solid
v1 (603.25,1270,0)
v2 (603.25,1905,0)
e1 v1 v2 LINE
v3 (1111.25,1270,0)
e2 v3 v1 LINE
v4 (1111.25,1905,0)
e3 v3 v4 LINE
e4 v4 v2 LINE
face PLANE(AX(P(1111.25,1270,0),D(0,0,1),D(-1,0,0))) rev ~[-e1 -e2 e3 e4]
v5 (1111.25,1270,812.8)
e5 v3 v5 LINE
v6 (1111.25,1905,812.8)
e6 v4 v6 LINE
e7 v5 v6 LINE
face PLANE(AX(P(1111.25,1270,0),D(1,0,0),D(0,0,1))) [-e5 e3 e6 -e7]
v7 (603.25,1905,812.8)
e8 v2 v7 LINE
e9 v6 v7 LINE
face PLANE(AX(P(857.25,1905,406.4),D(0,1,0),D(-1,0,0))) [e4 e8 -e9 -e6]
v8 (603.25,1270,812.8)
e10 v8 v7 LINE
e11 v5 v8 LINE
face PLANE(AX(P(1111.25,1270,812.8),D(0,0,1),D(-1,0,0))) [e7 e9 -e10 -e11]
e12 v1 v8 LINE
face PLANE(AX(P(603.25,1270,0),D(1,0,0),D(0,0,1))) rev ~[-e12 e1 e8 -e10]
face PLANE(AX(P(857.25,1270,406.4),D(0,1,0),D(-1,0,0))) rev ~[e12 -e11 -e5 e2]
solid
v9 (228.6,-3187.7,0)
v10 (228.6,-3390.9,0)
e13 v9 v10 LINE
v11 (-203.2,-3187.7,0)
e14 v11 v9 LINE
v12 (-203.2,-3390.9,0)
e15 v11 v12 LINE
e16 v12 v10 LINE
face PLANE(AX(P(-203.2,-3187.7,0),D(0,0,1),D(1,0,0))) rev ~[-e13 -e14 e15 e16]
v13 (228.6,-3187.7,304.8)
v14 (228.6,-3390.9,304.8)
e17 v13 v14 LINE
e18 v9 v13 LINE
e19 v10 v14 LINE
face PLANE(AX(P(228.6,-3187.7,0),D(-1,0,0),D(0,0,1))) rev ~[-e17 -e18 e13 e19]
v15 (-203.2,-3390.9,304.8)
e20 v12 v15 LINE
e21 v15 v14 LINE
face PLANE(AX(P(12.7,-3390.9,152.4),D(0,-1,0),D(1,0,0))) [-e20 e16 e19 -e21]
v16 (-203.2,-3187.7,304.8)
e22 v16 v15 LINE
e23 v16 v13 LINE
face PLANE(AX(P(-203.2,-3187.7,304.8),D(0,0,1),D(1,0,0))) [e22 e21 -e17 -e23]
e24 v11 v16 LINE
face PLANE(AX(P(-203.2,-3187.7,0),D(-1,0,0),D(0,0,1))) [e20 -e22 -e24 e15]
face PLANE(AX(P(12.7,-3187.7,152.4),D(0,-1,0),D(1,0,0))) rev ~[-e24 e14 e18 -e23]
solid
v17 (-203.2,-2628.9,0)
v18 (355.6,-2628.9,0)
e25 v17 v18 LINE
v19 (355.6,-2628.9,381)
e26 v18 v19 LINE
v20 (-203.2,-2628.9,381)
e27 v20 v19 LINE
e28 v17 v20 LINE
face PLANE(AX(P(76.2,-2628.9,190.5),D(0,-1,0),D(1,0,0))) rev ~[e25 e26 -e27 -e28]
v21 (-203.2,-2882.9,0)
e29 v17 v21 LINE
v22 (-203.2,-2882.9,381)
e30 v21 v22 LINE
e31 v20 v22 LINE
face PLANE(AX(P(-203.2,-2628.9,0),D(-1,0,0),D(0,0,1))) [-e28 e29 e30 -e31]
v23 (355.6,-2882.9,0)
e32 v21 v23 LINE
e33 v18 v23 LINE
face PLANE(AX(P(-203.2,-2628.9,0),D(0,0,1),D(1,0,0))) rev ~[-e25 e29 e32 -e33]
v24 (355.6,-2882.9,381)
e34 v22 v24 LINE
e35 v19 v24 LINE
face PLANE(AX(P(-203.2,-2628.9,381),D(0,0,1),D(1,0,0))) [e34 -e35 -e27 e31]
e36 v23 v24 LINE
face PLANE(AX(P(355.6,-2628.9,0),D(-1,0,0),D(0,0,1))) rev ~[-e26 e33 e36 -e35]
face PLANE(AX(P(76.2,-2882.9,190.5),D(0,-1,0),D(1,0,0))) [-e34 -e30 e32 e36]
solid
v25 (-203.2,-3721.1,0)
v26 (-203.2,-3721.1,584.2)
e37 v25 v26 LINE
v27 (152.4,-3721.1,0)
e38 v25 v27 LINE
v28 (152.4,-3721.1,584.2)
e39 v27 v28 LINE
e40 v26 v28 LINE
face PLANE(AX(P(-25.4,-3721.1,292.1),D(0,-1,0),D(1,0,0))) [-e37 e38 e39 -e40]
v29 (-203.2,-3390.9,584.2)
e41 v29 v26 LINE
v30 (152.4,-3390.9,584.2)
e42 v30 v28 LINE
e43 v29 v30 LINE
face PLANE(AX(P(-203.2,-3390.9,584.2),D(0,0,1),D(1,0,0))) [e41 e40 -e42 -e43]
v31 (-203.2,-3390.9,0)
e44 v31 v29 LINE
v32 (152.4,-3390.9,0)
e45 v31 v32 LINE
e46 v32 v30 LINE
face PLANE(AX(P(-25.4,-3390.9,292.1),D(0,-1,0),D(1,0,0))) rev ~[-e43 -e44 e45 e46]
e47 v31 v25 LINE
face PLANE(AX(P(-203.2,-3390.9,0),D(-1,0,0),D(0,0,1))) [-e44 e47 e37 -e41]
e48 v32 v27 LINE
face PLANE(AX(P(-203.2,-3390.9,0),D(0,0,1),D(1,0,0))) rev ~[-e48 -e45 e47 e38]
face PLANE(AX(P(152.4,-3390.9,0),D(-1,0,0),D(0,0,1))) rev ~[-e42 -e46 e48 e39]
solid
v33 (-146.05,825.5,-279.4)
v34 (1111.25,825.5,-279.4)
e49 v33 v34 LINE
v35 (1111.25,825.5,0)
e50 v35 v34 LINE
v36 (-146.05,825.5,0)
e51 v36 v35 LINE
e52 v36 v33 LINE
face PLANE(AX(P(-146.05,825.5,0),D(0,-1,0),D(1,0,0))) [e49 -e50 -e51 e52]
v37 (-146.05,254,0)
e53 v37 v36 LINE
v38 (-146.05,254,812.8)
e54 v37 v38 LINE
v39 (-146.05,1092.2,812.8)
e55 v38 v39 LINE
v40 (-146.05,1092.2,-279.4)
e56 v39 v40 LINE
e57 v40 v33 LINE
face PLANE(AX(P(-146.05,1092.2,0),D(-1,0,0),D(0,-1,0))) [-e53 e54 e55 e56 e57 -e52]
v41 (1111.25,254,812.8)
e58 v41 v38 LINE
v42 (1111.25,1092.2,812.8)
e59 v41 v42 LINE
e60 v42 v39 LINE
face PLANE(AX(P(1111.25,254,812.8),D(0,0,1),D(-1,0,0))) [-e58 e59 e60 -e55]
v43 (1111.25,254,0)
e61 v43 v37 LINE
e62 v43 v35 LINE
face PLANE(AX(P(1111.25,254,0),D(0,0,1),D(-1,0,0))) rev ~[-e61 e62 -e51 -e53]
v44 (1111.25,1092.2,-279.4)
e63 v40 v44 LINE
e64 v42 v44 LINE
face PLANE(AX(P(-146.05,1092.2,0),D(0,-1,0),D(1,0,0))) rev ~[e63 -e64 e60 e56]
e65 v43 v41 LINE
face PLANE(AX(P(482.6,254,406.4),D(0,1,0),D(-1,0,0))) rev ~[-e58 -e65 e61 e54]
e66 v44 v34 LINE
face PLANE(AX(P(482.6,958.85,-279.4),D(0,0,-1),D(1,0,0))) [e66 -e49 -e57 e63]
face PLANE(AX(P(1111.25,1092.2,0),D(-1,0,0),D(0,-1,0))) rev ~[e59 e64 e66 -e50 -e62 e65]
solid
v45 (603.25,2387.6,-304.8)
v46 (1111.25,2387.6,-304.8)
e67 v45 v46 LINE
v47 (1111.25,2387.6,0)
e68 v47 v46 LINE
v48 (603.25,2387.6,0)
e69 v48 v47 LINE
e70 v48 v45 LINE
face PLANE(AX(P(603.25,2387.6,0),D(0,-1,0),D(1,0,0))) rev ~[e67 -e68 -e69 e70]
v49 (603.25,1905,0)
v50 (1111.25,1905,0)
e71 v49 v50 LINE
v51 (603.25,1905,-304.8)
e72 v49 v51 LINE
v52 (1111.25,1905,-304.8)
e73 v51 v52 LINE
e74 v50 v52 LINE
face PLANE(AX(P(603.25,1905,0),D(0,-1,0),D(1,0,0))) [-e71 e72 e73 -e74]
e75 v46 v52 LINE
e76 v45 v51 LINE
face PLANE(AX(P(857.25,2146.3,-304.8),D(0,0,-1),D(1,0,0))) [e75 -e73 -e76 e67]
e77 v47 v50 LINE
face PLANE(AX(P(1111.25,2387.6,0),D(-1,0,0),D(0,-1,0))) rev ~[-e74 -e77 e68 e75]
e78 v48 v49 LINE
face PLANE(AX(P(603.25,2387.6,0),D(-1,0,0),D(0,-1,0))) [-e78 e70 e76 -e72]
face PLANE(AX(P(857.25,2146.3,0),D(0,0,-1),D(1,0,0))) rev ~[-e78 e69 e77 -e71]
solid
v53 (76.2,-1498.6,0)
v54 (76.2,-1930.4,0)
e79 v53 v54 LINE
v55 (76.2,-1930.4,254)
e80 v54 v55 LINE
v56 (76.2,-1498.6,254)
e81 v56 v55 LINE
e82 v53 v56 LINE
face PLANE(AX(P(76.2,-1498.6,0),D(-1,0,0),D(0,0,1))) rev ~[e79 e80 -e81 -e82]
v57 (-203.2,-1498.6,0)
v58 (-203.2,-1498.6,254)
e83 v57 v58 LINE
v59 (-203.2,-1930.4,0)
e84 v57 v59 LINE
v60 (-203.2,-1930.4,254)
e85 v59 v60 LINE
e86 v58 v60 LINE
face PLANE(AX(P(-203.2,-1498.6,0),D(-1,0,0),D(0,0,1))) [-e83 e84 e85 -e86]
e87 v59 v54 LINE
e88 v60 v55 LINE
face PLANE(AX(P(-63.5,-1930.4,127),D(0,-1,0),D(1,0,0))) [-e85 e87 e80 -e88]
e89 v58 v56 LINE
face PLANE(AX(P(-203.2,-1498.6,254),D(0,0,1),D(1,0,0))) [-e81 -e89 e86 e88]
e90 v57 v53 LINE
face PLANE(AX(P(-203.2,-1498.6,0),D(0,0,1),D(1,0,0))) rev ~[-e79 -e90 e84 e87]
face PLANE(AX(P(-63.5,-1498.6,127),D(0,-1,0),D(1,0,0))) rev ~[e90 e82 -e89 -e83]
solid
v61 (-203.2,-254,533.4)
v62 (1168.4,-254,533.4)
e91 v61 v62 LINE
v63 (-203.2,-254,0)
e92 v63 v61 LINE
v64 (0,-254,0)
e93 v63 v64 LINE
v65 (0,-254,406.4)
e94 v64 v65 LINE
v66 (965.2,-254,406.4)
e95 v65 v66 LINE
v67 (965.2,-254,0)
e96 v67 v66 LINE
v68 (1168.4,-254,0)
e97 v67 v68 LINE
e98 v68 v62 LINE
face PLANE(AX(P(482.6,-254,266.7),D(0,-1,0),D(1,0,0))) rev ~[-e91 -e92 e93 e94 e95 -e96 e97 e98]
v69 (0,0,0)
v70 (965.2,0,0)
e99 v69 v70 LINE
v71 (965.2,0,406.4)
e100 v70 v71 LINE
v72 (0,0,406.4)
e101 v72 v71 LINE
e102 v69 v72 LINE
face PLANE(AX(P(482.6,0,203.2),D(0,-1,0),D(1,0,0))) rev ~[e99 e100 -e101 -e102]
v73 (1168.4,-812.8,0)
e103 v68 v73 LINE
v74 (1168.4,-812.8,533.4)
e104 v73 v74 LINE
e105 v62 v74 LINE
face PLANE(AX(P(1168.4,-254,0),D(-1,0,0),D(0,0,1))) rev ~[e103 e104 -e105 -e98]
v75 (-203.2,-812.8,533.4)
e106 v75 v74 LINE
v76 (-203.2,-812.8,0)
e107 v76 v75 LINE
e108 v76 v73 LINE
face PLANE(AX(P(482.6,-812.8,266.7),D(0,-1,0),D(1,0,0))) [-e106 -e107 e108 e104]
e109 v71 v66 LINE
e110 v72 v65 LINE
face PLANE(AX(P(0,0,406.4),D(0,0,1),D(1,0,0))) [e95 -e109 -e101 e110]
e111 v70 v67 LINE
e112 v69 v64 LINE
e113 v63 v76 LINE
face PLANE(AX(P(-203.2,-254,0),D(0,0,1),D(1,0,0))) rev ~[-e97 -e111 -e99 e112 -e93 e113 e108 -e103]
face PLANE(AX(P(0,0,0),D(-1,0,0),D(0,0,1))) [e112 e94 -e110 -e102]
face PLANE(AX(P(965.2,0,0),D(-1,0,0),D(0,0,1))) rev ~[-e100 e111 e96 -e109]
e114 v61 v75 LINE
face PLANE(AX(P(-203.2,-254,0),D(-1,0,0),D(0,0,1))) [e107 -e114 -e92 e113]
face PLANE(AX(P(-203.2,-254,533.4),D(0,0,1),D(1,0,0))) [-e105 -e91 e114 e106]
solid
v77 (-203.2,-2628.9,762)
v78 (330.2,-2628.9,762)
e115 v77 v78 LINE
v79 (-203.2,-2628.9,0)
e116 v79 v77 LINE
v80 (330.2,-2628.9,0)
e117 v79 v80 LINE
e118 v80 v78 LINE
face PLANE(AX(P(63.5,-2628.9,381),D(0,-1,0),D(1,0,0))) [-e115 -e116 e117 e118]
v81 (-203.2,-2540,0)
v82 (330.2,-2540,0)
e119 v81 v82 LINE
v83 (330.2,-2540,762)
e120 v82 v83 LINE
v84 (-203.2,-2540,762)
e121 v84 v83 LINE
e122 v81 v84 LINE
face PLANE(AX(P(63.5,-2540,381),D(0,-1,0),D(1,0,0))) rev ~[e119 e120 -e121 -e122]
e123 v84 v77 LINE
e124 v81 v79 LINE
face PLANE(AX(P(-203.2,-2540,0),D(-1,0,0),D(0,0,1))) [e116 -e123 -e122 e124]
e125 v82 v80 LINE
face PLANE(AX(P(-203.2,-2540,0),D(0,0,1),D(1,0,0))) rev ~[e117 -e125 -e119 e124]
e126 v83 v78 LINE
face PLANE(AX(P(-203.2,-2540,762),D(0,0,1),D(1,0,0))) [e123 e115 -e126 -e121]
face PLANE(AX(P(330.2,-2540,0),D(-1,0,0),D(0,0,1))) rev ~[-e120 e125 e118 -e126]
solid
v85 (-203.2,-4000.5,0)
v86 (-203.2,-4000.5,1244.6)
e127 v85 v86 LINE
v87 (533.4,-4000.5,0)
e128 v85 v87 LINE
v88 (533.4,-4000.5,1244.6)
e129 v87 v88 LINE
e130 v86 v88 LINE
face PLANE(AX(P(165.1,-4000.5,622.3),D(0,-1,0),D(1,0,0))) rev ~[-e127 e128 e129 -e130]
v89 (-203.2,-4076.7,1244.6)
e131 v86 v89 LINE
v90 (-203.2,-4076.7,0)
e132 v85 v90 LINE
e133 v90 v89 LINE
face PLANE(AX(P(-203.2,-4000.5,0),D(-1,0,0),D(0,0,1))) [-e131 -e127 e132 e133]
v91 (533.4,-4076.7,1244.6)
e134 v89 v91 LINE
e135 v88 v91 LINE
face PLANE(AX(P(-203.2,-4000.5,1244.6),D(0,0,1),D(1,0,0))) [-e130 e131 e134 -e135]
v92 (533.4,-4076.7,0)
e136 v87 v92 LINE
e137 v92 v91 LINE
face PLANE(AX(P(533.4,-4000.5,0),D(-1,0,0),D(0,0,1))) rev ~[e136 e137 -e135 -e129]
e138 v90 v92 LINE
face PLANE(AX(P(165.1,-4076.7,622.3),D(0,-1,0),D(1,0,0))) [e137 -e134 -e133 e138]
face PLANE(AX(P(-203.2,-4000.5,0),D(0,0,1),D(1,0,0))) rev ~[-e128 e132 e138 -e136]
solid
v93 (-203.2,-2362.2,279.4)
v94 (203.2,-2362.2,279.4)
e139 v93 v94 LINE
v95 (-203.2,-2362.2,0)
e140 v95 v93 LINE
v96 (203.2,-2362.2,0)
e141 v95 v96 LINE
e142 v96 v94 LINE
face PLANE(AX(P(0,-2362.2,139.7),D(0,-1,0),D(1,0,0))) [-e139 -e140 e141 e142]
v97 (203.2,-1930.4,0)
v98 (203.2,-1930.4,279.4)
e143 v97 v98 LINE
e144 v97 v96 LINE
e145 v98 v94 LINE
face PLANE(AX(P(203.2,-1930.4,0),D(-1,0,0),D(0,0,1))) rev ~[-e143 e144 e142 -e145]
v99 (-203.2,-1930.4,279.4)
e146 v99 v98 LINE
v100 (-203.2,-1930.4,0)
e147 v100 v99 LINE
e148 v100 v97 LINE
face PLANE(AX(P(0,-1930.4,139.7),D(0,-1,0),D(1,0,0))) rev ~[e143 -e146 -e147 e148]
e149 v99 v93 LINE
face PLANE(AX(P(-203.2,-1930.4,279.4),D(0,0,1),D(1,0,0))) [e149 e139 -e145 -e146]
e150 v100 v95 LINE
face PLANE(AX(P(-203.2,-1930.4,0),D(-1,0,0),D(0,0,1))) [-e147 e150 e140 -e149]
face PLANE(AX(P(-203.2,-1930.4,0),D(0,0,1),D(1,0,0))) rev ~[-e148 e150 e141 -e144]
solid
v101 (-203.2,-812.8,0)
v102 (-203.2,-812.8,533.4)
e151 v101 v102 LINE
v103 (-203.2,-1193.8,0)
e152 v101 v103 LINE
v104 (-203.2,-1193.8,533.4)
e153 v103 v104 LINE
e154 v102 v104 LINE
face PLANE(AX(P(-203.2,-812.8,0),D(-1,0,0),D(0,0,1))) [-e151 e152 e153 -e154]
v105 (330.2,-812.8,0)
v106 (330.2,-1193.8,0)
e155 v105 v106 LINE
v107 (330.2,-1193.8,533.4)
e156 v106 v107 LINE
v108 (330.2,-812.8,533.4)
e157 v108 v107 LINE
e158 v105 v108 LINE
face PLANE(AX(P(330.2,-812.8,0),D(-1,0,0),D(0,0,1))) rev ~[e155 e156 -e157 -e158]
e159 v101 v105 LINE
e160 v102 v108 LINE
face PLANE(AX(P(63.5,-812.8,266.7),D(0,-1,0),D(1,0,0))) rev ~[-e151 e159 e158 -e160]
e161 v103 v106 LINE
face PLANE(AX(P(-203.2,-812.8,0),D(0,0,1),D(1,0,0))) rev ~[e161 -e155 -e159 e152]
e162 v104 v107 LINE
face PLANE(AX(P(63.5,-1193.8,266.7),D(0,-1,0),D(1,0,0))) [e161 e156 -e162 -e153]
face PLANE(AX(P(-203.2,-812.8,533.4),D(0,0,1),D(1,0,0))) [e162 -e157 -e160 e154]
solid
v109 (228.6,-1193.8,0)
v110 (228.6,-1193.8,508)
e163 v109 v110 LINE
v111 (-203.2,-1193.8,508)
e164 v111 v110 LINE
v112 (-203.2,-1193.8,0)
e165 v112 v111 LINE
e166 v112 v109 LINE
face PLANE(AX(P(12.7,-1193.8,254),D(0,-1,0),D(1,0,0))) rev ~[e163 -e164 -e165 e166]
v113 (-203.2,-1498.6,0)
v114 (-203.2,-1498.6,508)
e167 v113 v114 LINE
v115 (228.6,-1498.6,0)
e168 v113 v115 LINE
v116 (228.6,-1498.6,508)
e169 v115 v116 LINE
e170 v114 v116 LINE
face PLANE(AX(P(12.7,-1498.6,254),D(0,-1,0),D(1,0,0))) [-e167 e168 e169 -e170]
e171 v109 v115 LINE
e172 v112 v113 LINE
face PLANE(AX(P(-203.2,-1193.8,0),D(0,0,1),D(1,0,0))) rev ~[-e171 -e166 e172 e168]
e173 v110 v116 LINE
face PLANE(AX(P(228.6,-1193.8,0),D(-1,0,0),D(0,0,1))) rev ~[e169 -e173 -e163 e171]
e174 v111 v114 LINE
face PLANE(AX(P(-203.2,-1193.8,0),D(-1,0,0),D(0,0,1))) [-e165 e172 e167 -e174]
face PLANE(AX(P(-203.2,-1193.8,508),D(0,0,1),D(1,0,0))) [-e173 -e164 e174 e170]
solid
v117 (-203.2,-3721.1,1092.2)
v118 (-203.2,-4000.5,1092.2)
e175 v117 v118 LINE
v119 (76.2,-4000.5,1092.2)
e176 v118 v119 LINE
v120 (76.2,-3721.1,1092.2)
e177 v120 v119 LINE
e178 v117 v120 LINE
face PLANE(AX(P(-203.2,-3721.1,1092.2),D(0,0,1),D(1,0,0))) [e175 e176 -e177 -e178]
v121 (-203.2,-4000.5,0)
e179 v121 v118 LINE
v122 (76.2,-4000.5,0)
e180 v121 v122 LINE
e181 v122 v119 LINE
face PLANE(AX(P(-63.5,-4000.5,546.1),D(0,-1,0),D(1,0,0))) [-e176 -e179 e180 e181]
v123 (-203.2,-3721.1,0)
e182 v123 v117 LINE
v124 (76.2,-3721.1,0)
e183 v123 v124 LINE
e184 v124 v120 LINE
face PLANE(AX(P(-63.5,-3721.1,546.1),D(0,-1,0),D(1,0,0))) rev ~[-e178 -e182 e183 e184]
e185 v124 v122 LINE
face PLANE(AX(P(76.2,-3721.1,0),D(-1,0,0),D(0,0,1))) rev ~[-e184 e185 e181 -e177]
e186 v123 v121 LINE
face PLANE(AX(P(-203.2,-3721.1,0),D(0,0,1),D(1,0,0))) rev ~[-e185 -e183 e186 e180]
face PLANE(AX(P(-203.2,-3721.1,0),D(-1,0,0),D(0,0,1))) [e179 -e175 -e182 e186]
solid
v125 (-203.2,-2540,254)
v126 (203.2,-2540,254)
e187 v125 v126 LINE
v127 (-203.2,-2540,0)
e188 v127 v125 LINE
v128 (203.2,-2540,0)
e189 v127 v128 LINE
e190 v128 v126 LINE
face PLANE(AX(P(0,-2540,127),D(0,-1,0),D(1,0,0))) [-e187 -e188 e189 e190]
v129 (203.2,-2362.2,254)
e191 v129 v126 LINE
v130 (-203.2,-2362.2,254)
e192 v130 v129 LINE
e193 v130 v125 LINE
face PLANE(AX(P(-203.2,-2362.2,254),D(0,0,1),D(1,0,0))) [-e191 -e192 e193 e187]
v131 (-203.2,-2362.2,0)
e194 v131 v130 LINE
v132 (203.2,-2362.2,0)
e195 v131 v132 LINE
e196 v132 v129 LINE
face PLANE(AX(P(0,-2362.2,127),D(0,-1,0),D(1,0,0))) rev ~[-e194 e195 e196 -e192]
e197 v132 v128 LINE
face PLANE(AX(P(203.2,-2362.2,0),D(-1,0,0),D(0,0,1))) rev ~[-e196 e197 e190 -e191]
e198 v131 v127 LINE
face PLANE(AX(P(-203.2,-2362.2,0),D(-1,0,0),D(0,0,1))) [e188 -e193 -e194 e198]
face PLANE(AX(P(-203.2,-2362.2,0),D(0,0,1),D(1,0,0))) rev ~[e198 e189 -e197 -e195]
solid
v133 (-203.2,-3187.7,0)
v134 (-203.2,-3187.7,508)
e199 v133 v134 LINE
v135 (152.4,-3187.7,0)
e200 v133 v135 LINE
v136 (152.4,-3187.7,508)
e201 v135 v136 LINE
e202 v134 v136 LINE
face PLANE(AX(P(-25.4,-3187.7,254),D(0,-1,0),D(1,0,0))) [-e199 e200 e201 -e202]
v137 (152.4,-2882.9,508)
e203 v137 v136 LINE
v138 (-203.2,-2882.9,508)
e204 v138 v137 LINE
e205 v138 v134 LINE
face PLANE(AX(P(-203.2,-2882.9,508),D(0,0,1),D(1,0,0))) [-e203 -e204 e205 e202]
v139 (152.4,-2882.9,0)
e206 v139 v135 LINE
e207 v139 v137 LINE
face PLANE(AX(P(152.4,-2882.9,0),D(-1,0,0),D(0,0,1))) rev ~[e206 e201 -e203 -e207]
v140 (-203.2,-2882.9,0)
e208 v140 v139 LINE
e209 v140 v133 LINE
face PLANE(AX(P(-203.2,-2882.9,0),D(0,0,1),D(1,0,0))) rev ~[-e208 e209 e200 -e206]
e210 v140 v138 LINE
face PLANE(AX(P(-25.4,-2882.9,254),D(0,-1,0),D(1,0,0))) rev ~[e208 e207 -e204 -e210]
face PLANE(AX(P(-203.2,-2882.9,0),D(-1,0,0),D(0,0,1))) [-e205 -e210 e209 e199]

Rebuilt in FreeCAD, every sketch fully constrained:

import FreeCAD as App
import Part
import Sketcher
Q = App.Units.Quantity

doc = App.newDocument("Part")
body = doc.addObject("PartDesign::Body", "Body")

sketch1 = body.newObject("Sketcher::SketchObject", "Sketch")
sketch1.AttachmentSupport = (doc.getObject("XZ_Plane"), [""])
sketch1.MapMode = "FlatFace"
sketch1.addGeometry([
    Part.LineSegment(App.Vector(0, 406, 0), App.Vector(0, 0, 0)),
    Part.LineSegment(App.Vector(0, 0, 0), App.Vector(965, 0, 0)),
    Part.LineSegment(App.Vector(965, 0, 0), App.Vector(965, 406, 0)),
    Part.LineSegment(App.Vector(965, 406, 0), App.Vector(0, 406, 0)),
], False)
sketch1.addConstraint([
    Sketcher.Constraint("Coincident", 0, 2, 1, 1),
    Sketcher.Constraint("Coincident", 1, 2, 2, 1),
    Sketcher.Constraint("Coincident", 2, 2, 3, 1),
    Sketcher.Constraint("Coincident", 3, 2, 0, 1),
    Sketcher.Constraint("Vertical", 0),
    Sketcher.Constraint("Horizontal", 1),
    Sketcher.Constraint("Vertical", 2),
    Sketcher.Constraint("Horizontal", 3),
    Sketcher.Constraint("Coincident", 0, 2, -1, 1),
    Sketcher.Constraint("DistanceX", 1, 1, 1, 2, Q("38 in")),
    Sketcher.Constraint("DistanceY", 0, 2, 0, 1, Q("16 in")),
])
pad1 = body.newObject("PartDesign::Pad", "Pad")
pad1.Profile = sketch1
pad1.Length = Q("10 in")

sketch2 = body.newObject("Sketcher::SketchObject", "Sketch001")
sketch2.AttachmentSupport = (doc.getObject("XZ_Plane"), [""])
sketch2.MapMode = "FlatFace"
sketch2.AttachmentOffset = App.Placement(App.Vector(0, 0, 10 * 25.4), App.Rotation())
sketch2.addGeometry([
    Part.LineSegment(App.Vector(-203, 533, 0), App.Vector(-203, 0, 0)),
    Part.LineSegment(App.Vector(-203, 0, 0), App.Vector(1168, 0, 0)),
    Part.LineSegment(App.Vector(1168, 0, 0), App.Vector(1168, 533, 0)),
    Part.LineSegment(App.Vector(1168, 533, 0), App.Vector(-203, 533, 0)),
], False)
sketch2.addConstraint([
    Sketcher.Constraint("Coincident", 0, 2, 1, 1),
    Sketcher.Constraint("Coincident", 1, 2, 2, 1),
    Sketcher.Constraint("Coincident", 2, 2, 3, 1),
    Sketcher.Constraint("Coincident", 3, 2, 0, 1),
    Sketcher.Constraint("Vertical", 0),
    Sketcher.Constraint("Horizontal", 1),
    Sketcher.Constraint("Vertical", 2),
    Sketcher.Constraint("Horizontal", 3),
    Sketcher.Constraint("PointOnObject", 0, 2, -1),
    Sketcher.Constraint("DistanceX", 1, 1, 1, 2, Q("54 in")),
    Sketcher.Constraint("DistanceY", 0, 2, 0, 1, Q("21 in")),
    Sketcher.Constraint("DistanceX", 0, 2, -1, 1, Q("8 in")),
])
pad2 = body.newObject("PartDesign::Pad", "Pad001")
pad2.Profile = sketch2
pad2.Length = Q("22 in")
body2 = doc.addObject("PartDesign::Body", "Body001")

sketch3 = body2.newObject("Sketcher::SketchObject", "Sketch002")
sketch3.AttachmentSupport = (doc.getObject("XZ_Plane001"), [""])
sketch3.MapMode = "FlatFace"
sketch3.AttachmentOffset = App.Placement(App.Vector(0, 0, -10 * 25.4), App.Rotation())
sketch3.addGeometry([
    Part.LineSegment(App.Vector(1111, 813, 0), App.Vector(1111, 0, 0)),
    Part.LineSegment(App.Vector(1111, 0, 0), App.Vector(-146, 0, 0)),
    Part.LineSegment(App.Vector(-146, 0, 0), App.Vector(-146, 813, 0)),
    Part.LineSegment(App.Vector(-146, 813, 0), App.Vector(1111, 813, 0)),
], False)
sketch3.addConstraint([
    Sketcher.Constraint("Coincident", 0, 2, 1, 1),
    Sketcher.Constraint("Coincident", 1, 2, 2, 1),
    Sketcher.Constraint("Coincident", 2, 2, 3, 1),
    Sketcher.Constraint("Coincident", 3, 2, 0, 1),
    Sketcher.Constraint("Vertical", 0),
    Sketcher.Constraint("Horizontal", 1),
    Sketcher.Constraint("Vertical", 2),
    Sketcher.Constraint("Horizontal", 3),
    Sketcher.Constraint("PointOnObject", 0, 2, -1),
    Sketcher.Constraint("DistanceY", 0, 2, 0, 1, Q("32 in")),
    Sketcher.Constraint("DistanceX", 1, 2, 1, 1, Q("49.5 in")),
    Sketcher.Constraint("DistanceX", -1, 1, 0, 2, Q("43.75 in")),
])
pad3 = body2.newObject("PartDesign::Pad", "Pad002")
pad3.Profile = sketch3
pad3.Length = Q("33 in")
pad3.Reversed = True

sketch4 = body2.newObject("Sketcher::SketchObject", "Sketch003")
sketch4.AttachmentSupport = (doc.getObject("XY_Plane001"), [""])
sketch4.MapMode = "FlatFace"
sketch4.addGeometry([
    Part.LineSegment(App.Vector(-146, 826, 0), App.Vector(-146, 1092, 0)),
    Part.LineSegment(App.Vector(-146, 1092, 0), App.Vector(1111, 1092, 0)),
    Part.LineSegment(App.Vector(1111, 1092, 0), App.Vector(1111, 826, 0)),
    Part.LineSegment(App.Vector(1111, 826, 0), App.Vector(-146, 826, 0)),
], False)
sketch4.addConstraint([
    Sketcher.Constraint("Coincident", 0, 2, 1, 1),
    Sketcher.Constraint("Coincident", 1, 2, 2, 1),
    Sketcher.Constraint("Coincident", 2, 2, 3, 1),
    Sketcher.Constraint("Coincident", 3, 2, 0, 1),
    Sketcher.Constraint("Vertical", 0),
    Sketcher.Constraint("Horizontal", 1),
    Sketcher.Constraint("Vertical", 2),
    Sketcher.Constraint("Horizontal", 3),
    Sketcher.Constraint("DistanceX", 1, 1, 1, 2, Q("49.5 in")),
    Sketcher.Constraint("DistanceY", 0, 1, 0, 2, Q("10.5 in")),
    Sketcher.Constraint("DistanceY", -1, 1, 0, 2, Q("43 in")),
    Sketcher.Constraint("DistanceX", 0, 2, -1, 1, Q("5.75 in")),
])
pad4 = body2.newObject("PartDesign::Pad", "Pad003")
pad4.Profile = sketch4
pad4.Length = Q("11 in")
pad4.Reversed = True
body3 = doc.addObject("PartDesign::Body", "Body002")

sketch5 = body3.newObject("Sketcher::SketchObject", "Sketch004")
sketch5.AttachmentSupport = (doc.getObject("XZ_Plane002"), [""])
sketch5.MapMode = "FlatFace"
sketch5.AttachmentOffset = App.Placement(App.Vector(0, 0, -50 * 25.4), App.Rotation())
sketch5.addGeometry([
    Part.LineSegment(App.Vector(1111, 813, 0), App.Vector(1111, 0, 0)),
    Part.LineSegment(App.Vector(1111, 0, 0), App.Vector(603, 0, 0)),
    Part.LineSegment(App.Vector(603, 0, 0), App.Vector(603, 813, 0)),
    Part.LineSegment(App.Vector(603, 813, 0), App.Vector(1111, 813, 0)),
], False)
sketch5.addConstraint([
    Sketcher.Constraint("Coincident", 0, 2, 1, 1),
    Sketcher.Constraint("Coincident", 1, 2, 2, 1),
    Sketcher.Constraint("Coincident", 2, 2, 3, 1),
    Sketcher.Constraint("Coincident", 3, 2, 0, 1),
    Sketcher.Constraint("Vertical", 0),
    Sketcher.Constraint("Horizontal", 1),
    Sketcher.Constraint("Vertical", 2),
    Sketcher.Constraint("Horizontal", 3),
    Sketcher.Constraint("PointOnObject", 0, 2, -1),
    Sketcher.Constraint("DistanceX", 1, 2, 1, 1, Q("20 in")),
    Sketcher.Constraint("DistanceY", 0, 2, 0, 1, Q("32 in")),
    Sketcher.Constraint("DistanceX", -1, 1, 0, 2, Q("43.75 in")),
])
pad5 = body3.newObject("PartDesign::Pad", "Pad004")
pad5.Profile = sketch5
pad5.Length = Q("25 in")
pad5.Reversed = True
body4 = doc.addObject("PartDesign::Body", "Body003")

sketch6 = body4.newObject("Sketcher::SketchObject", "Sketch005")
sketch6.AttachmentSupport = (doc.getObject("XY_Plane003"), [""])
sketch6.MapMode = "FlatFace"
sketch6.addGeometry([
    Part.LineSegment(App.Vector(603, 1905, 0), App.Vector(603, 2388, 0)),
    Part.LineSegment(App.Vector(603, 2388, 0), App.Vector(1111, 2388, 0)),
    Part.LineSegment(App.Vector(1111, 2388, 0), App.Vector(1111, 1905, 0)),
    Part.LineSegment(App.Vector(1111, 1905, 0), App.Vector(603, 1905, 0)),
], False)
sketch6.addConstraint([
    Sketcher.Constraint("Coincident", 0, 2, 1, 1),
    Sketcher.Constraint("Coincident", 1, 2, 2, 1),
    Sketcher.Constraint("Coincident", 2, 2, 3, 1),
    Sketcher.Constraint("Coincident", 3, 2, 0, 1),
    Sketcher.Constraint("Vertical", 0),
    Sketcher.Constraint("Horizontal", 1),
    Sketcher.Constraint("Vertical", 2),
    Sketcher.Constraint("Horizontal", 3),
    Sketcher.Constraint("DistanceX", 1, 1, 1, 2, Q("20 in")),
    Sketcher.Constraint("DistanceY", 0, 1, 0, 2, Q("19 in")),
    Sketcher.Constraint("DistanceY", -1, 1, 0, 2, Q("94 in")),
    Sketcher.Constraint("DistanceX", -1, 1, 0, 2, Q("23.75 in")),
])
pad6 = body4.newObject("PartDesign::Pad", "Pad005")
pad6.Profile = sketch6
pad6.Length = Q("12 in")
pad6.Reversed = True
body5 = doc.addObject("PartDesign::Body", "Body004")

sketch7 = body5.newObject("Sketcher::SketchObject", "Sketch006")
sketch7.AttachmentSupport = (doc.getObject("XZ_Plane004"), [""])
sketch7.MapMode = "FlatFace"
sketch7.AttachmentOffset = App.Placement(App.Vector(0, 0, 32 * 25.4), App.Rotation())
sketch7.addGeometry([
    Part.LineSegment(App.Vector(-203, 533, 0), App.Vector(-203, 0, 0)),
    Part.LineSegment(App.Vector(-203, 0, 0), App.Vector(330, 0, 0)),
    Part.LineSegment(App.Vector(330, 0, 0), App.Vector(330, 533, 0)),
    Part.LineSegment(App.Vector(330, 533, 0), App.Vector(-203, 533, 0)),
], False)
sketch7.addConstraint([
    Sketcher.Constraint("Coincident", 0, 2, 1, 1),
    Sketcher.Constraint("Coincident", 1, 2, 2, 1),
    Sketcher.Constraint("Coincident", 2, 2, 3, 1),
    Sketcher.Constraint("Coincident", 3, 2, 0, 1),
    Sketcher.Constraint("Vertical", 0),
    Sketcher.Constraint("Horizontal", 1),
    Sketcher.Constraint("Vertical", 2),
    Sketcher.Constraint("Horizontal", 3),
    Sketcher.Constraint("PointOnObject", 0, 2, -1),
    Sketcher.Constraint("Equal", 3, 0),
    Sketcher.Constraint("DistanceX", 1, 1, 1, 2, Q("21 in")),
    Sketcher.Constraint("DistanceX", 0, 2, -1, 1, Q("8 in")),
])
pad7 = body5.newObject("PartDesign::Pad", "Pad006")
pad7.Profile = sketch7
pad7.Length = Q("15 in")
body6 = doc.addObject("PartDesign::Body", "Body005")

sketch8 = body6.newObject("Sketcher::SketchObject", "Sketch007")
sketch8.AttachmentSupport = (doc.getObject("XZ_Plane005"), [""])
sketch8.MapMode = "FlatFace"
sketch8.AttachmentOffset = App.Placement(App.Vector(0, 0, 47 * 25.4), App.Rotation())
sketch8.addGeometry([
    Part.LineSegment(App.Vector(-203, 508, 0), App.Vector(-203, 0, 0)),
    Part.LineSegment(App.Vector(-203, 0, 0), App.Vector(229, 0, 0)),
    Part.LineSegment(App.Vector(229, 0, 0), App.Vector(229, 508, 0)),
    Part.LineSegment(App.Vector(229, 508, 0), App.Vector(-203, 508, 0)),
], False)
sketch8.addConstraint([
    Sketcher.Constraint("Coincident", 0, 2, 1, 1),
    Sketcher.Constraint("Coincident", 1, 2, 2, 1),
    Sketcher.Constraint("Coincident", 2, 2, 3, 1),
    Sketcher.Constraint("Coincident", 3, 2, 0, 1),
    Sketcher.Constraint("Vertical", 0),
    Sketcher.Constraint("Horizontal", 1),
    Sketcher.Constraint("Vertical", 2),
    Sketcher.Constraint("Horizontal", 3),
    Sketcher.Constraint("PointOnObject", 0, 2, -1),
    Sketcher.Constraint("DistanceX", 1, 1, 1, 2, Q("17 in")),
    Sketcher.Constraint("DistanceY", 0, 2, 0, 1, Q("20 in")),
    Sketcher.Constraint("DistanceX", 0, 2, -1, 1, Q("8 in")),
])
pad8 = body6.newObject("PartDesign::Pad", "Pad007")
pad8.Profile = sketch8
pad8.Length = Q("12 in")
body7 = doc.addObject("PartDesign::Body", "Body006")

sketch9 = body7.newObject("Sketcher::SketchObject", "Sketch008")
sketch9.AttachmentSupport = (doc.getObject("XZ_Plane006"), [""])
sketch9.MapMode = "FlatFace"
sketch9.AttachmentOffset = App.Placement(App.Vector(0, 0, 59 * 25.4), App.Rotation())
sketch9.addGeometry([
    Part.LineSegment(App.Vector(-203, 254, 0), App.Vector(-203, 0, 0)),
    Part.LineSegment(App.Vector(-203, 0, 0), App.Vector(76, 0, 0)),
    Part.LineSegment(App.Vector(76, 0, 0), App.Vector(76, 254, 0)),
    Part.LineSegment(App.Vector(76, 254, 0), App.Vector(-203, 254, 0)),
], False)
sketch9.addConstraint([
    Sketcher.Constraint("Coincident", 0, 2, 1, 1),
    Sketcher.Constraint("Coincident", 1, 2, 2, 1),
    Sketcher.Constraint("Coincident", 2, 2, 3, 1),
    Sketcher.Constraint("Coincident", 3, 2, 0, 1),
    Sketcher.Constraint("Vertical", 0),
    Sketcher.Constraint("Horizontal", 1),
    Sketcher.Constraint("Vertical", 2),
    Sketcher.Constraint("Horizontal", 3),
    Sketcher.Constraint("PointOnObject", 0, 2, -1),
    Sketcher.Constraint("DistanceX", 1, 1, 1, 2, Q("11 in")),
    Sketcher.Constraint("DistanceY", 0, 2, 0, 1, Q("10 in")),
    Sketcher.Constraint("DistanceX", 0, 2, -1, 1, Q("8 in")),
])
pad9 = body7.newObject("PartDesign::Pad", "Pad008")
pad9.Profile = sketch9
pad9.Length = Q("17 in")
body8 = doc.addObject("PartDesign::Body", "Body007")

sketch10 = body8.newObject("Sketcher::SketchObject", "Sketch009")
sketch10.AttachmentSupport = (doc.getObject("XZ_Plane007"), [""])
sketch10.MapMode = "FlatFace"
sketch10.AttachmentOffset = App.Placement(App.Vector(0, 0, 76 * 25.4), App.Rotation())
sketch10.addGeometry([
    Part.LineSegment(App.Vector(-203, 279, 0), App.Vector(-203, 0, 0)),
    Part.LineSegment(App.Vector(-203, 0, 0), App.Vector(203, 0, 0)),
    Part.LineSegment(App.Vector(203, 0, 0), App.Vector(203, 279, 0)),
    Part.LineSegment(App.Vector(203, 279, 0), App.Vector(-203, 279, 0)),
], False)
sketch10.addConstraint([
    Sketcher.Constraint("Coincident", 0, 2, 1, 1),
    Sketcher.Constraint("Coincident", 1, 2, 2, 1),
    Sketcher.Constraint("Coincident", 2, 2, 3, 1),
    Sketcher.Constraint("Coincident", 3, 2, 0, 1),
    Sketcher.Constraint("Vertical", 0),
    Sketcher.Constraint("Horizontal", 1),
    Sketcher.Constraint("Vertical", 2),
    Sketcher.Constraint("Horizontal", 3),
    Sketcher.Constraint("Symmetric", 0, 2, 1, 2, -1, 1),
    Sketcher.Constraint("DistanceX", 1, 1, 1, 2, Q("16 in")),
    Sketcher.Constraint("DistanceY", 0, 2, 0, 1, Q("11 in")),
])
pad10 = body8.newObject("PartDesign::Pad", "Pad009")
pad10.Profile = sketch10
pad10.Length = Q("17 in")
body9 = doc.addObject("PartDesign::Body", "Body008")

sketch11 = body9.newObject("Sketcher::SketchObject", "Sketch010")
sketch11.AttachmentSupport = (doc.getObject("XZ_Plane008"), [""])
sketch11.MapMode = "FlatFace"
sketch11.AttachmentOffset = App.Placement(App.Vector(0, 0, 93 * 25.4), App.Rotation())
sketch11.addGeometry([
    Part.LineSegment(App.Vector(-203, 254, 0), App.Vector(-203, 0, 0)),
    Part.LineSegment(App.Vector(-203, 0, 0), App.Vector(203, 0, 0)),
    Part.LineSegment(App.Vector(203, 0, 0), App.Vector(203, 254, 0)),
    Part.LineSegment(App.Vector(203, 254, 0), App.Vector(-203, 254, 0)),
], False)
sketch11.addConstraint([
    Sketcher.Constraint("Coincident", 0, 2, 1, 1),
    Sketcher.Constraint("Coincident", 1, 2, 2, 1),
    Sketcher.Constraint("Coincident", 2, 2, 3, 1),
    Sketcher.Constraint("Coincident", 3, 2, 0, 1),
    Sketcher.Constraint("Vertical", 0),
    Sketcher.Constraint("Horizontal", 1),
    Sketcher.Constraint("Vertical", 2),
    Sketcher.Constraint("Horizontal", 3),
    Sketcher.Constraint("Symmetric", 0, 2, 1, 2, -1, 1),
    Sketcher.Constraint("DistanceX", 1, 1, 1, 2, Q("16 in")),
    Sketcher.Constraint("DistanceY", 0, 2, 0, 1, Q("10 in")),
])
pad11 = body9.newObject("PartDesign::Pad", "Pad010")
pad11.Profile = sketch11
pad11.Length = Q("7 in")
body10 = doc.addObject("PartDesign::Body", "Body009")

sketch12 = body10.newObject("Sketcher::SketchObject", "Sketch011")
sketch12.AttachmentSupport = (doc.getObject("XZ_Plane009"), [""])
sketch12.MapMode = "FlatFace"
sketch12.AttachmentOffset = App.Placement(App.Vector(0, 0, 100 * 25.4), App.Rotation())
sketch12.addGeometry([
    Part.LineSegment(App.Vector(-203, 762, 0), App.Vector(-203, 0, 0)),
    Part.LineSegment(App.Vector(-203, 0, 0), App.Vector(330, 0, 0)),
    Part.LineSegment(App.Vector(330, 0, 0), App.Vector(330, 762, 0)),
    Part.LineSegment(App.Vector(330, 762, 0), App.Vector(-203, 762, 0)),
], False)
sketch12.addConstraint([
    Sketcher.Constraint("Coincident", 0, 2, 1, 1),
    Sketcher.Constraint("Coincident", 1, 2, 2, 1),
    Sketcher.Constraint("Coincident", 2, 2, 3, 1),
    Sketcher.Constraint("Coincident", 3, 2, 0, 1),
    Sketcher.Constraint("Vertical", 0),
    Sketcher.Constraint("Horizontal", 1),
    Sketcher.Constraint("Vertical", 2),
    Sketcher.Constraint("Horizontal", 3),
    Sketcher.Constraint("PointOnObject", 0, 2, -1),
    Sketcher.Constraint("DistanceX", 1, 1, 1, 2, Q("21 in")),
    Sketcher.Constraint("DistanceY", 0, 2, 0, 1, Q("30 in")),
    Sketcher.Constraint("DistanceX", 0, 2, -1, 1, Q("8 in")),
])
pad12 = body10.newObject("PartDesign::Pad", "Pad011")
pad12.Profile = sketch12
pad12.Length = Q("3.5 in")
body11 = doc.addObject("PartDesign::Body", "Body010")

sketch13 = body11.newObject("Sketcher::SketchObject", "Sketch012")
sketch13.AttachmentSupport = (doc.getObject("XZ_Plane010"), [""])
sketch13.MapMode = "FlatFace"
sketch13.AttachmentOffset = App.Placement(App.Vector(0, 0, 103.5 * 25.4), App.Rotation())
sketch13.addGeometry([
    Part.LineSegment(App.Vector(-203, 381, 0), App.Vector(-203, 0, 0)),
    Part.LineSegment(App.Vector(-203, 0, 0), App.Vector(356, 0, 0)),
    Part.LineSegment(App.Vector(356, 0, 0), App.Vector(356, 381, 0)),
    Part.LineSegment(App.Vector(356, 381, 0), App.Vector(-203, 381, 0)),
], False)
sketch13.addConstraint([
    Sketcher.Constraint("Coincident", 0, 2, 1, 1),
    Sketcher.Constraint("Coincident", 1, 2, 2, 1),
    Sketcher.Constraint("Coincident", 2, 2, 3, 1),
    Sketcher.Constraint("Coincident", 3, 2, 0, 1),
    Sketcher.Constraint("Vertical", 0),
    Sketcher.Constraint("Horizontal", 1),
    Sketcher.Constraint("Vertical", 2),
    Sketcher.Constraint("Horizontal", 3),
    Sketcher.Constraint("PointOnObject", 0, 2, -1),
    Sketcher.Constraint("DistanceX", 1, 1, 1, 2, Q("22 in")),
    Sketcher.Constraint("DistanceY", 0, 2, 0, 1, Q("15 in")),
    Sketcher.Constraint("DistanceX", 0, 2, -1, 1, Q("8 in")),
])
pad13 = body11.newObject("PartDesign::Pad", "Pad012")
pad13.Profile = sketch13
pad13.Length = Q("10 in")
body12 = doc.addObject("PartDesign::Body", "Body011")

sketch14 = body12.newObject("Sketcher::SketchObject", "Sketch013")
sketch14.AttachmentSupport = (doc.getObject("XZ_Plane011"), [""])
sketch14.MapMode = "FlatFace"
sketch14.AttachmentOffset = App.Placement(App.Vector(0, 0, 113.5 * 25.4), App.Rotation())
sketch14.addGeometry([
    Part.LineSegment(App.Vector(-203, 508, 0), App.Vector(-203, 0, 0)),
    Part.LineSegment(App.Vector(-203, 0, 0), App.Vector(152, 0, 0)),
    Part.LineSegment(App.Vector(152, 0, 0), App.Vector(152, 508, 0)),
    Part.LineSegment(App.Vector(152, 508, 0), App.Vector(-203, 508, 0)),
], False)
sketch14.addConstraint([
    Sketcher.Constraint("Coincident", 0, 2, 1, 1),
    Sketcher.Constraint("Coincident", 1, 2, 2, 1),
    Sketcher.Constraint("Coincident", 2, 2, 3, 1),
    Sketcher.Constraint("Coincident", 3, 2, 0, 1),
    Sketcher.Constraint("Vertical", 0),
    Sketcher.Constraint("Horizontal", 1),
    Sketcher.Constraint("Vertical", 2),
    Sketcher.Constraint("Horizontal", 3),
    Sketcher.Constraint("PointOnObject", 0, 2, -1),
    Sketcher.Constraint("DistanceX", 1, 1, 1, 2, Q("14 in")),
    Sketcher.Constraint("DistanceY", 0, 2, 0, 1, Q("20 in")),
    Sketcher.Constraint("DistanceX", 0, 2, -1, 1, Q("8 in")),
])
pad14 = body12.newObject("PartDesign::Pad", "Pad013")
pad14.Profile = sketch14
pad14.Length = Q("12 in")
body13 = doc.addObject("PartDesign::Body", "Body012")

sketch15 = body13.newObject("Sketcher::SketchObject", "Sketch014")
sketch15.AttachmentSupport = (doc.getObject("XZ_Plane012"), [""])
sketch15.MapMode = "FlatFace"
sketch15.AttachmentOffset = App.Placement(App.Vector(0, 0, 125.5 * 25.4), App.Rotation())
sketch15.addGeometry([
    Part.LineSegment(App.Vector(-203, 305, 0), App.Vector(-203, 0, 0)),
    Part.LineSegment(App.Vector(-203, 0, 0), App.Vector(229, 0, 0)),
    Part.LineSegment(App.Vector(229, 0, 0), App.Vector(229, 305, 0)),
    Part.LineSegment(App.Vector(229, 305, 0), App.Vector(-203, 305, 0)),
], False)
sketch15.addConstraint([
    Sketcher.Constraint("Coincident", 0, 2, 1, 1),
    Sketcher.Constraint("Coincident", 1, 2, 2, 1),
    Sketcher.Constraint("Coincident", 2, 2, 3, 1),
    Sketcher.Constraint("Coincident", 3, 2, 0, 1),
    Sketcher.Constraint("Vertical", 0),
    Sketcher.Constraint("Horizontal", 1),
    Sketcher.Constraint("Vertical", 2),
    Sketcher.Constraint("Horizontal", 3),
    Sketcher.Constraint("PointOnObject", 0, 2, -1),
    Sketcher.Constraint("DistanceX", 1, 1, 1, 2, Q("17 in")),
    Sketcher.Constraint("DistanceY", 0, 2, 0, 1, Q("12 in")),
    Sketcher.Constraint("DistanceX", 0, 2, -1, 1, Q("8 in")),
])
pad15 = body13.newObject("PartDesign::Pad", "Pad014")
pad15.Profile = sketch15
pad15.Length = Q("8 in")
body14 = doc.addObject("PartDesign::Body", "Body013")

sketch16 = body14.newObject("Sketcher::SketchObject", "Sketch015")
sketch16.AttachmentSupport = (doc.getObject("XZ_Plane013"), [""])
sketch16.MapMode = "FlatFace"
sketch16.AttachmentOffset = App.Placement(App.Vector(0, 0, 133.5 * 25.4), App.Rotation())
sketch16.addGeometry([
    Part.LineSegment(App.Vector(-203, 584, 0), App.Vector(-203, 0, 0)),
    Part.LineSegment(App.Vector(-203, 0, 0), App.Vector(152, 0, 0)),
    Part.LineSegment(App.Vector(152, 0, 0), App.Vector(152, 584, 0)),
    Part.LineSegment(App.Vector(152, 584, 0), App.Vector(-203, 584, 0)),
], False)
sketch16.addConstraint([
    Sketcher.Constraint("Coincident", 0, 2, 1, 1),
    Sketcher.Constraint("Coincident", 1, 2, 2, 1),
    Sketcher.Constraint("Coincident", 2, 2, 3, 1),
    Sketcher.Constraint("Coincident", 3, 2, 0, 1),
    Sketcher.Constraint("Vertical", 0),
    Sketcher.Constraint("Horizontal", 1),
    Sketcher.Constraint("Vertical", 2),
    Sketcher.Constraint("Horizontal", 3),
    Sketcher.Constraint("PointOnObject", 0, 2, -1),
    Sketcher.Constraint("DistanceX", 1, 1, 1, 2, Q("14 in")),
    Sketcher.Constraint("DistanceY", 0, 2, 0, 1, Q("23 in")),
    Sketcher.Constraint("DistanceX", 0, 2, -1, 1, Q("8 in")),
])
pad16 = body14.newObject("PartDesign::Pad", "Pad015")
pad16.Profile = sketch16
pad16.Length = Q("13 in")
body15 = doc.addObject("PartDesign::Body", "Body014")

sketch17 = body15.newObject("Sketcher::SketchObject", "Sketch016")
sketch17.AttachmentSupport = (doc.getObject("XZ_Plane014"), [""])
sketch17.MapMode = "FlatFace"
sketch17.AttachmentOffset = App.Placement(App.Vector(0, 0, 146.5 * 25.4), App.Rotation())
sketch17.addGeometry([
    Part.LineSegment(App.Vector(-203, 1092, 0), App.Vector(-203, 0, 0)),
    Part.LineSegment(App.Vector(-203, 0, 0), App.Vector(76, 0, 0)),
    Part.LineSegment(App.Vector(76, 0, 0), App.Vector(76, 1092, 0)),
    Part.LineSegment(App.Vector(76, 1092, 0), App.Vector(-203, 1092, 0)),
], False)
sketch17.addConstraint([
    Sketcher.Constraint("Coincident", 0, 2, 1, 1),
    Sketcher.Constraint("Coincident", 1, 2, 2, 1),
    Sketcher.Constraint("Coincident", 2, 2, 3, 1),
    Sketcher.Constraint("Coincident", 3, 2, 0, 1),
    Sketcher.Constraint("Vertical", 0),
    Sketcher.Constraint("Horizontal", 1),
    Sketcher.Constraint("Vertical", 2),
    Sketcher.Constraint("Horizontal", 3),
    Sketcher.Constraint("PointOnObject", 0, 2, -1),
    Sketcher.Constraint("DistanceX", 1, 1, 1, 2, Q("11 in")),
    Sketcher.Constraint("DistanceY", 0, 2, 0, 1, Q("43 in")),
    Sketcher.Constraint("DistanceX", 0, 2, -1, 1, Q("8 in")),
])
pad17 = body15.newObject("PartDesign::Pad", "Pad016")
pad17.Profile = sketch17
pad17.Length = Q("11 in")
body16 = doc.addObject("PartDesign::Body", "Body015")

sketch18 = body16.newObject("Sketcher::SketchObject", "Sketch017")
sketch18.AttachmentSupport = (doc.getObject("XZ_Plane015"), [""])
sketch18.MapMode = "FlatFace"
sketch18.AttachmentOffset = App.Placement(App.Vector(0, 0, 157.5 * 25.4), App.Rotation())
sketch18.addGeometry([
    Part.LineSegment(App.Vector(-203, 1245, 0), App.Vector(-203, 0, 0)),
    Part.LineSegment(App.Vector(-203, 0, 0), App.Vector(533, 0, 0)),
    Part.LineSegment(App.Vector(533, 0, 0), App.Vector(533, 1245, 0)),
    Part.LineSegment(App.Vector(533, 1245, 0), App.Vector(-203, 1245, 0)),
], False)
sketch18.addConstraint([
    Sketcher.Constraint("Coincident", 0, 2, 1, 1),
    Sketcher.Constraint("Coincident", 1, 2, 2, 1),
    Sketcher.Constraint("Coincident", 2, 2, 3, 1),
    Sketcher.Constraint("Coincident", 3, 2, 0, 1),
    Sketcher.Constraint("Vertical", 0),
    Sketcher.Constraint("Horizontal", 1),
    Sketcher.Constraint("Vertical", 2),
    Sketcher.Constraint("Horizontal", 3),
    Sketcher.Constraint("PointOnObject", 0, 2, -1),
    Sketcher.Constraint("DistanceX", 1, 1, 1, 2, Q("29 in")),
    Sketcher.Constraint("DistanceY", 0, 2, 0, 1, Q("49 in")),
    Sketcher.Constraint("DistanceX", 0, 2, -1, 1, Q("8 in")),
])
pad18 = body16.newObject("PartDesign::Pad", "Pad017")
pad18.Profile = sketch18
pad18.Length = Q("3 in")

doc.recompute()
